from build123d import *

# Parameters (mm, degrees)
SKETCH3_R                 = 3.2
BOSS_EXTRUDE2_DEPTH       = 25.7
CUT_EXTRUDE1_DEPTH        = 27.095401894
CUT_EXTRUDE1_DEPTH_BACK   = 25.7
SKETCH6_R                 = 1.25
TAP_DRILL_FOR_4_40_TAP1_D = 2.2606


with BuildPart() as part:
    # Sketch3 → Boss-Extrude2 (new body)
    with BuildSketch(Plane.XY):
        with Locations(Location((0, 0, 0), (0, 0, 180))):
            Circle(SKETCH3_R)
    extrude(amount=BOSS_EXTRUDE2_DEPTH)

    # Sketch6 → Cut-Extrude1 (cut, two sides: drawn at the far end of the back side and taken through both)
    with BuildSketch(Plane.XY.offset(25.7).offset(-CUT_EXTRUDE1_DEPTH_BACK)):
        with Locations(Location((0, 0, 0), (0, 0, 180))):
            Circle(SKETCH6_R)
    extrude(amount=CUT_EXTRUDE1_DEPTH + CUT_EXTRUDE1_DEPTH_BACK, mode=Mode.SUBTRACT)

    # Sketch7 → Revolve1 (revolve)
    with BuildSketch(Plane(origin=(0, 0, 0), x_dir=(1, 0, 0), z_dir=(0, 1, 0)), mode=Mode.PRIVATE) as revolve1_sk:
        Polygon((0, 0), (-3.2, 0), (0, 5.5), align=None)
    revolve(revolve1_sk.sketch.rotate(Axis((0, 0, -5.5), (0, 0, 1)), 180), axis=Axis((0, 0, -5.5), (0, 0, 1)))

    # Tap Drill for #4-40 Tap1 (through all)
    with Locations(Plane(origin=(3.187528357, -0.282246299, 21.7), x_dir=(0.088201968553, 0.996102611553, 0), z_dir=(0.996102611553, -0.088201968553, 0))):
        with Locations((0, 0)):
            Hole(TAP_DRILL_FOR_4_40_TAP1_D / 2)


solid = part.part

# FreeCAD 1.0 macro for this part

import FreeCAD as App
import Part
import Sketcher

V = App.Vector
Q = App.Units.Quantity

doc = App.newDocument("Part")
body = doc.addObject("PartDesign::Body", "Body")

# Sketch on XY plane
sketch1 = body.newObject("Sketcher::SketchObject", "Sketch")
sketch1.AttachmentSupport = (doc.getObject("XY_Plane"), [""])
sketch1.MapMode = "FlatFace"
sketch1.addGeometry(Part.Circle(V(0, 0, 0), V(0, 0, 1), 3.2), False)
sketch1.addConstraint(Sketcher.Constraint("Coincident", 0, 3, -1, 1))
sketch1.addConstraint(Sketcher.Constraint("Diameter", 0, Q("6.4 mm")))
pad1 = body.newObject("PartDesign::Pad", "Pad")
pad1.Profile = sketch1
pad1.Length = 25.7

# Sketch on XY plane
sketch2 = body.newObject("Sketcher::SketchObject", "Sketch001")
sketch2.AttachmentSupport = (doc.getObject("XY_Plane"), [""])
sketch2.MapMode = "FlatFace"
sketch2.AttachmentOffset = App.Placement(V(0, 0, 25.7), App.Rotation())
sketch2.addGeometry(Part.Circle(V(0, 0, 0), V(0, 0, 1), 1.2), False)
sketch2.addConstraint(Sketcher.Constraint("Coincident", 0, 3, -1, 1))
sketch2.addConstraint(Sketcher.Constraint("Diameter", 0, Q("2.5 mm")))
pocket1 = body.newObject("PartDesign::Pocket", "Pocket")
pocket1.Profile = sketch2
pocket1.Type = "ThroughAll"
pocket1.Midplane = True

# Sketch on XZ plane
sketch3 = body.newObject("Sketcher::SketchObject", "Sketch002")
sketch3.AttachmentSupport = (doc.getObject("XZ_Plane"), [""])
sketch3.MapMode = "FlatFace"
sketch3.addGeometry(Part.LineSegment(V(-3.2, 0, 0), V(0, 0, 0)), False)
sketch3.addGeometry(Part.LineSegment(V(0, 0, 0), V(0, -5.5, 0)), False)
sketch3.addGeometry(Part.LineSegment(V(0, -5.5, 0), V(-3.2, 0, 0)), False)
sketch3.addConstraint(Sketcher.Constraint("Coincident", 0, 2, 1, 1))
sketch3.addConstraint(Sketcher.Constraint("Coincident", 1, 2, 2, 1))
sketch3.addConstraint(Sketcher.Constraint("Coincident", 2, 2, 0, 1))
sketch3.addConstraint(Sketcher.Constraint("Horizontal", 0))
sketch3.addConstraint(Sketcher.Constraint("Vertical", 1))
sketch3.addConstraint(Sketcher.Constraint("Coincident", 0, 2, -1, 1))
sketch3.addConstraint(Sketcher.Constraint("DistanceX", 0, 1, 0, 2, Q("3.2 mm")))
sketch3.addConstraint(Sketcher.Constraint("DistanceY", 1, 2, 1, 1, Q("5.5 mm")))
revolution = body.newObject("PartDesign::Revolution", "Revolution")
revolution.Profile = sketch3
revolution.ReferenceAxis = (sketch3, ["V_Axis"])
revolution.Angle = 360

# Sketch on an angled plane
sketch4 = body.newObject("Sketcher::SketchObject", "Sketch003")
sketch4.Placement = App.Placement(V(3.187528, -0.282246, 0), App.Rotation(V(0.088201969, 0.996102612, 0), V(0, 0, 1.000000001), V(0.996102612, -0.088201969, 0), "ZXY"))
sketch4.addGeometry(Part.Circle(V(0, 21.7, 0), V(0, 0, 1), 1.1), False)
sketch4.addConstraint(Sketcher.Constraint("PointOnObject", 0, 3, -2))
sketch4.addConstraint(Sketcher.Constraint("Diameter", 0, Q("2.2606 mm")))
sketch4.addConstraint(Sketcher.Constraint("DistanceY", -1, 1, 0, 3, Q("21.7 mm")))
doc.recompute()
hole = body.newObject("PartDesign::Hole", "Hole")
hole.Profile = sketch4
hole.ThreadType = "None"
hole.Diameter = 2.2606
hole.DepthType = "ThroughAll"

doc.recompute()
